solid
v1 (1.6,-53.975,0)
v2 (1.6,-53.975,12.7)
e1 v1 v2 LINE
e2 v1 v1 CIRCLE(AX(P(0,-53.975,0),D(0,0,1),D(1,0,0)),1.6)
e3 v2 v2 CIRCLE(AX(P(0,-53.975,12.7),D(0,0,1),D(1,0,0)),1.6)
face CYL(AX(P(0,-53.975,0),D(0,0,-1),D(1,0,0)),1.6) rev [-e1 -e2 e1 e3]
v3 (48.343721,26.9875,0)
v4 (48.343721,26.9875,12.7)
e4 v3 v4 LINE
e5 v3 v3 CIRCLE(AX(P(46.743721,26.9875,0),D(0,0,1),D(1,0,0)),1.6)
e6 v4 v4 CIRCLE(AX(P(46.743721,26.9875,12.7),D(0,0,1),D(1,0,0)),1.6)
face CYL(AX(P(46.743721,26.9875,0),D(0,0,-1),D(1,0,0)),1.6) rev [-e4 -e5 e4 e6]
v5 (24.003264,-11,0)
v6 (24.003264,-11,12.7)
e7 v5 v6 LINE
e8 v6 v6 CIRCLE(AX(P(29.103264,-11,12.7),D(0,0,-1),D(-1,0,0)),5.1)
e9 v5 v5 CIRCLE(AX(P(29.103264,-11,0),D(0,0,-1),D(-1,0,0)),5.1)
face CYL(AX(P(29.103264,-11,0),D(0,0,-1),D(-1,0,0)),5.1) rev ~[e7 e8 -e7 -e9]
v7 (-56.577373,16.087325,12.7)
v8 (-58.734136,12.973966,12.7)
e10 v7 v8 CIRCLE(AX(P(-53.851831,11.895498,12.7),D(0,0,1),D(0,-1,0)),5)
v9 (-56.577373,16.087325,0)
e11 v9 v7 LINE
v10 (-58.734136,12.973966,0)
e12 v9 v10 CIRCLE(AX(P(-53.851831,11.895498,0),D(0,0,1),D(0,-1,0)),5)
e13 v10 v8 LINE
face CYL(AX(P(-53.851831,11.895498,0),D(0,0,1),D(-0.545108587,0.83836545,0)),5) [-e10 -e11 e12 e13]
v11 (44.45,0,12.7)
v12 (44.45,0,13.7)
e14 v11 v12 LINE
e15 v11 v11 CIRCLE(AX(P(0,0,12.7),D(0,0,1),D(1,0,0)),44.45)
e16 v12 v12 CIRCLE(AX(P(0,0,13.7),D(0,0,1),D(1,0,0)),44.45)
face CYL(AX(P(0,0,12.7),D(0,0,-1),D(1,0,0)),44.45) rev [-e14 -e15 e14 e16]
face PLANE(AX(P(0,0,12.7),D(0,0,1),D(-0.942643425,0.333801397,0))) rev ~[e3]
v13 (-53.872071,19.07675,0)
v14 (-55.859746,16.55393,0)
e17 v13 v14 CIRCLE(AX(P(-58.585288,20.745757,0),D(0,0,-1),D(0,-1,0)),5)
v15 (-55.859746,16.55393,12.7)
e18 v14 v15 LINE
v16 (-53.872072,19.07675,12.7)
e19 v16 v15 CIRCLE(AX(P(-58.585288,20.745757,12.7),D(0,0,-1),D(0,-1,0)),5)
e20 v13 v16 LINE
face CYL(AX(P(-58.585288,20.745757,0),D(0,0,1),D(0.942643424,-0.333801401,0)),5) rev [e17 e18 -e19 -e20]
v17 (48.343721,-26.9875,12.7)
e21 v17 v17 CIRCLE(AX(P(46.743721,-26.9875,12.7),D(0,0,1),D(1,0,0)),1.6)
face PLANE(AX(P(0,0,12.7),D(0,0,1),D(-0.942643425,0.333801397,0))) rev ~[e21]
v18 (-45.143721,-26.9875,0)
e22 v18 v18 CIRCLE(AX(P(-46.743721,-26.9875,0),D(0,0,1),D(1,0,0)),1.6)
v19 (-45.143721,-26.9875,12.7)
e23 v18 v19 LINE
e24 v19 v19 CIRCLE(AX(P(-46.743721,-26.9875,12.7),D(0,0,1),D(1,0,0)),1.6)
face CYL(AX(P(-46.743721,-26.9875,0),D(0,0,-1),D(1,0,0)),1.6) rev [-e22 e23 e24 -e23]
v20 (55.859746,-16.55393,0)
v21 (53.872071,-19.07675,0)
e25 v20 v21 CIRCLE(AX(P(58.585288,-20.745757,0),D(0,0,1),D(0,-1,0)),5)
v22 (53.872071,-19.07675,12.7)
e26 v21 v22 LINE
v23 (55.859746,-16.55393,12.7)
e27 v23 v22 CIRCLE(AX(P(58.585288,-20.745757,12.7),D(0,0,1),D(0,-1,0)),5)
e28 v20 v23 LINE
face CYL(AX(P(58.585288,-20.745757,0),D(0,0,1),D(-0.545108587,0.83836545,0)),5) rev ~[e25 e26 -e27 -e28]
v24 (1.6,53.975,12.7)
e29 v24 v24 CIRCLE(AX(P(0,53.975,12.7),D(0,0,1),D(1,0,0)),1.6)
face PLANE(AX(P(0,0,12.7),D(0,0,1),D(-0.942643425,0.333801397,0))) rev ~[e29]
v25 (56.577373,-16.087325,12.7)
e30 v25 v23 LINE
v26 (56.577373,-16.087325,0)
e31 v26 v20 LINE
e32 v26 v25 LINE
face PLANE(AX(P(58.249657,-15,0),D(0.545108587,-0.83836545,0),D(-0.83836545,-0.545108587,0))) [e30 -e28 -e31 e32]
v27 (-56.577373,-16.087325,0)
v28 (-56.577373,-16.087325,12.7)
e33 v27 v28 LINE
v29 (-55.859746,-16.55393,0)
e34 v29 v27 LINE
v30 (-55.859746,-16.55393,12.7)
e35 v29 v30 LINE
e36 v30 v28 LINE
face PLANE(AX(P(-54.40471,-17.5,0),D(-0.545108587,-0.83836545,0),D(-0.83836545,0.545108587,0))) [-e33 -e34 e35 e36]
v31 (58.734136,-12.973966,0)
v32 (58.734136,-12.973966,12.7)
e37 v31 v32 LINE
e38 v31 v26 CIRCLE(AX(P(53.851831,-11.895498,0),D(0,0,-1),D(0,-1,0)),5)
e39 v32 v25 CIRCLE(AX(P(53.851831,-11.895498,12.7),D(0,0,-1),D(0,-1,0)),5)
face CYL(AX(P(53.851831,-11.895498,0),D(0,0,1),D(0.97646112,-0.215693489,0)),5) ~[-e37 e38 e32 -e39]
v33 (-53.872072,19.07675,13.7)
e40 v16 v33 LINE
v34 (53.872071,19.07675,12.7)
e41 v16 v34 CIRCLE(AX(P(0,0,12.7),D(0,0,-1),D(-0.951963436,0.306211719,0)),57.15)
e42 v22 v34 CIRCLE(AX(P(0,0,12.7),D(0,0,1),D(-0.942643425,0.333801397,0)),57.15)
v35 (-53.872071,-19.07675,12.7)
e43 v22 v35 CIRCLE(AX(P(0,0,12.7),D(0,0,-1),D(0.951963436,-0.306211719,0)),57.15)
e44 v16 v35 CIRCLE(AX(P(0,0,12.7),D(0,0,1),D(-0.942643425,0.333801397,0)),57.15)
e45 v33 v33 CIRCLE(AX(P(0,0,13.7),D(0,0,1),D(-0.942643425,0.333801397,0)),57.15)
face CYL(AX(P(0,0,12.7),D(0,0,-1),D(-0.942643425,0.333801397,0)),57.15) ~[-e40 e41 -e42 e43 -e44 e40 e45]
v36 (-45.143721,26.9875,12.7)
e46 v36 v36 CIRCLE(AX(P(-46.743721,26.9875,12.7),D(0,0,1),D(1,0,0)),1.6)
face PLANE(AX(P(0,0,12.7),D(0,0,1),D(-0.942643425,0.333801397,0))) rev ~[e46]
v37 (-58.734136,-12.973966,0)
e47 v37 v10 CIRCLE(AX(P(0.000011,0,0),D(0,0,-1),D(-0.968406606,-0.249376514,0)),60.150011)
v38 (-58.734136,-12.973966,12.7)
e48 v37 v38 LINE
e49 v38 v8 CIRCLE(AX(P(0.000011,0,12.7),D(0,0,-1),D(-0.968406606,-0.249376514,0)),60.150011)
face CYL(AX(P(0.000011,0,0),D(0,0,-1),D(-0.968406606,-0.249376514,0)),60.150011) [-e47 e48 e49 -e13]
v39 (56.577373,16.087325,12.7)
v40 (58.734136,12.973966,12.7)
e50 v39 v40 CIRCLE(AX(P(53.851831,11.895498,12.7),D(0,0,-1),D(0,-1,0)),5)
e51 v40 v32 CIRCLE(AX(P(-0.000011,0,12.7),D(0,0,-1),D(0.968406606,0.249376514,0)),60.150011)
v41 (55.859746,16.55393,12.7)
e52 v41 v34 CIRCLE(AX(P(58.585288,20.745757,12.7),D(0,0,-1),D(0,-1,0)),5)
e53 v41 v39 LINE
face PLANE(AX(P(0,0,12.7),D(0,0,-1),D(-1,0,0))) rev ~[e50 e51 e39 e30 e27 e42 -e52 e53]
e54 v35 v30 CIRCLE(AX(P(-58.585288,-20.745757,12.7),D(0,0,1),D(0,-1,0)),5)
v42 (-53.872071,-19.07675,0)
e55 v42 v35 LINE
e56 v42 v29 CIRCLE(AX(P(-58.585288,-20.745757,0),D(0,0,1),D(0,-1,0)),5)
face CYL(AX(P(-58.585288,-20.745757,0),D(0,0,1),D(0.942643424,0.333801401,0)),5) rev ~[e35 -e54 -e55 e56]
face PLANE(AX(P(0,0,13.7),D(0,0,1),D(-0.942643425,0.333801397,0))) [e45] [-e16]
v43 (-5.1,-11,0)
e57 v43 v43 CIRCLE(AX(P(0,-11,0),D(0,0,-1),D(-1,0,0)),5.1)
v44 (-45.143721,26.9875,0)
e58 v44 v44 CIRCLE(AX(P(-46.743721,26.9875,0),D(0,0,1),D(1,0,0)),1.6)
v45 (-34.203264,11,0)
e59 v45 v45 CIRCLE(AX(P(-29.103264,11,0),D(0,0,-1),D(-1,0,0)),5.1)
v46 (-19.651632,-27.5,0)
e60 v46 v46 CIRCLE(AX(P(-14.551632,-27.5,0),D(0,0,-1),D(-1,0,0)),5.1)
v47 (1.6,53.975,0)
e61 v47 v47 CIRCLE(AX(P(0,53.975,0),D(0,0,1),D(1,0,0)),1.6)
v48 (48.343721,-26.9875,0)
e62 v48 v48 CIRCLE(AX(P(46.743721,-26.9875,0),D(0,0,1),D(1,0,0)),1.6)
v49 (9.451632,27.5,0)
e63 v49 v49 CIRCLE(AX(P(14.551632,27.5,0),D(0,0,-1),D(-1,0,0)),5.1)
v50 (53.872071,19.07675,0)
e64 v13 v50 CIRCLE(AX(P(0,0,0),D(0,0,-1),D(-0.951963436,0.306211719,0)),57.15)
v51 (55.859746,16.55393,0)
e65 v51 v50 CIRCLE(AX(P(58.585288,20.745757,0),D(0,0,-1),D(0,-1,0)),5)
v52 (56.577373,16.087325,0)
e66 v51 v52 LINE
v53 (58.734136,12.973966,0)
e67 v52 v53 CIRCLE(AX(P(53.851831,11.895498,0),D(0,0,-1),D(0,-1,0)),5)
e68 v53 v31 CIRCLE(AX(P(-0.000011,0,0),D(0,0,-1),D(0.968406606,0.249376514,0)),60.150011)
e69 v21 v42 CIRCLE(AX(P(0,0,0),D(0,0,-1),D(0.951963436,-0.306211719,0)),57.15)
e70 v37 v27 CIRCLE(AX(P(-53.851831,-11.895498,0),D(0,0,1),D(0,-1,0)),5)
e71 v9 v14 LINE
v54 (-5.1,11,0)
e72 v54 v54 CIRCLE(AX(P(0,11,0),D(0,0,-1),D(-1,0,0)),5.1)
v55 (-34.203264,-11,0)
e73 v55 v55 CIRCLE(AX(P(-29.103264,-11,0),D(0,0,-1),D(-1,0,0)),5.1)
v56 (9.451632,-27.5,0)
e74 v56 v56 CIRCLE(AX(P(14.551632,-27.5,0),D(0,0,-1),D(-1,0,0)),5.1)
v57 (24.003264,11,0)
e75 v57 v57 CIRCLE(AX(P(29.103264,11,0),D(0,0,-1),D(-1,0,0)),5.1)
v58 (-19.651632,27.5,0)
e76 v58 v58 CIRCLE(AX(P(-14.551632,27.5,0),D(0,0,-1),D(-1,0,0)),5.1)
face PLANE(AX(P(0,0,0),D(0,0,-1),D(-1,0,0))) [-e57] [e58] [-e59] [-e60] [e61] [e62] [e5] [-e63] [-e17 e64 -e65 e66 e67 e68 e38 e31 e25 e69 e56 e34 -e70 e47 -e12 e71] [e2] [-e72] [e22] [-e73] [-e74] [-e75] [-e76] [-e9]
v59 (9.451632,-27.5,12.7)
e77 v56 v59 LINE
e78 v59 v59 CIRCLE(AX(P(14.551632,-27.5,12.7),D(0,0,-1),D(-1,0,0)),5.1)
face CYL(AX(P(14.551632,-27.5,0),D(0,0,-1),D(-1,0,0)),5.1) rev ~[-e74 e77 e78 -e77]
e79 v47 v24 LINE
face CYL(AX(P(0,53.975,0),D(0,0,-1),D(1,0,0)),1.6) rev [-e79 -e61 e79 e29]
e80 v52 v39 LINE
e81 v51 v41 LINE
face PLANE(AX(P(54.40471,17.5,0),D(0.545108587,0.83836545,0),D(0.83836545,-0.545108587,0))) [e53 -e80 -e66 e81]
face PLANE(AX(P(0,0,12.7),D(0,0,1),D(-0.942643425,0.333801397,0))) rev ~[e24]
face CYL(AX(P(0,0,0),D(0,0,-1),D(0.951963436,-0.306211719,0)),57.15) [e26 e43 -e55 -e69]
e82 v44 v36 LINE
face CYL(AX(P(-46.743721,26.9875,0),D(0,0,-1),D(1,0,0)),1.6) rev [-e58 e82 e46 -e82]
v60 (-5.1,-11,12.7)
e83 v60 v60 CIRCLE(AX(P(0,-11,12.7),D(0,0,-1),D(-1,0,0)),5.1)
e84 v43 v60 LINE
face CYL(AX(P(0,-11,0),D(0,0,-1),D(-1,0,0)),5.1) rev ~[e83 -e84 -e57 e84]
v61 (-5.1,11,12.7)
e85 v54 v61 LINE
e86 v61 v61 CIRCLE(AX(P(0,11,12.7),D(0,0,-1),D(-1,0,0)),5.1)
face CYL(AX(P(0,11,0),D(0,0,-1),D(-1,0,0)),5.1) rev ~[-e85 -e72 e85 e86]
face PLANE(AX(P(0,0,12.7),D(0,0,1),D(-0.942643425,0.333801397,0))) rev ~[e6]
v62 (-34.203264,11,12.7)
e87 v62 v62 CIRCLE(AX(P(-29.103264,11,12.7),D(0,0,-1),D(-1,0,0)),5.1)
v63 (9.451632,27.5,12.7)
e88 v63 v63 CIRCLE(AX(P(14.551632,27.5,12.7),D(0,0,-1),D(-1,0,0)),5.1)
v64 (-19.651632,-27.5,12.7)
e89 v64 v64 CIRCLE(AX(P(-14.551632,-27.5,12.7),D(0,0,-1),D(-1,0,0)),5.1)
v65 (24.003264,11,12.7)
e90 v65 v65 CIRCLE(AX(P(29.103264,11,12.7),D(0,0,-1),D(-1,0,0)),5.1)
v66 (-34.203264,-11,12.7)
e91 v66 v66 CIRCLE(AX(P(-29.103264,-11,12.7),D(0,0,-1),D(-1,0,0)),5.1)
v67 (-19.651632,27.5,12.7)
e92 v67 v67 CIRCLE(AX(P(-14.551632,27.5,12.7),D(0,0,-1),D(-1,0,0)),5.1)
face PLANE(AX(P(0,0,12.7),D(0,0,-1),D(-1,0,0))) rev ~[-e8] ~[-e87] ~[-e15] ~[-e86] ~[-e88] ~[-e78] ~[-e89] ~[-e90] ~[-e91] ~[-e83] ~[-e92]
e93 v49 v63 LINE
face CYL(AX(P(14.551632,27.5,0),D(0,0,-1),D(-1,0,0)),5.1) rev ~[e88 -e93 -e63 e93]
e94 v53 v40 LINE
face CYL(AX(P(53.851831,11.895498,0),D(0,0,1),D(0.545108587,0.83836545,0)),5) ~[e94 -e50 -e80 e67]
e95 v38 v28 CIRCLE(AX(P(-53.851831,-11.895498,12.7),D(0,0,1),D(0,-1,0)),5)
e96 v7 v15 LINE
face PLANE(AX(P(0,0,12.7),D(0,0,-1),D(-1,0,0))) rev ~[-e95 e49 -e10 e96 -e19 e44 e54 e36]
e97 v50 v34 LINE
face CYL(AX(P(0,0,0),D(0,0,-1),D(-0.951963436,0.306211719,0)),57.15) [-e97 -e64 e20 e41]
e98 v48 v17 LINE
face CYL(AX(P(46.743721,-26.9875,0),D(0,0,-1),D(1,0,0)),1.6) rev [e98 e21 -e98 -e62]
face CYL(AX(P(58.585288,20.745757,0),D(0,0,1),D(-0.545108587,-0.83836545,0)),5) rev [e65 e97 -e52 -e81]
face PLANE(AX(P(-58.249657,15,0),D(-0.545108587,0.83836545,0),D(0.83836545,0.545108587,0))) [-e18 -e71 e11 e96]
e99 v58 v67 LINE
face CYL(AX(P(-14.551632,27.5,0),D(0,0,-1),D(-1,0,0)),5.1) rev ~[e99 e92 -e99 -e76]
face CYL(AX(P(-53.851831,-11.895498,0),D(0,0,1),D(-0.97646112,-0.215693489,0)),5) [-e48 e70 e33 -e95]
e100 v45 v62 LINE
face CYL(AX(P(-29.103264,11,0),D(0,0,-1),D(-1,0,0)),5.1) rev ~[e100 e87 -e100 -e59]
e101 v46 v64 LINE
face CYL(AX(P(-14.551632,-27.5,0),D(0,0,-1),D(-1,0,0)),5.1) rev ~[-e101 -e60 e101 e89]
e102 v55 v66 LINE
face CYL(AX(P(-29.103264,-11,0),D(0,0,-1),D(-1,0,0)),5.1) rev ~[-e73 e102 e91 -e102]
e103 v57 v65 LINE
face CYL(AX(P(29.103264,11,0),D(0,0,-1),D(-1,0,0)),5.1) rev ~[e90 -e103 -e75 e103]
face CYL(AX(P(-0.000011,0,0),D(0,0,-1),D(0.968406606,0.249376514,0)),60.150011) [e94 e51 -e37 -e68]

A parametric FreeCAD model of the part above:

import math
import FreeCAD as App
import Part
import Sketcher
from FreeCAD import Vector
Q = App.Units.Quantity


def edges_at(feature, points):
    """Names of the edges that pass closest to the given points."""
    edges = feature.Shape.Edges
    near = lambda p: min(range(len(edges)), key=lambda i: edges[i].distToShape(Part.Vertex(*p))[0])
    return sorted({f"Edge{near(p) + 1}" for p in points})

doc = App.newDocument("Part")
body = doc.addObject("PartDesign::Body", "Body")

sketch1 = body.newObject("Sketcher::SketchObject", "Sketch")
sketch1.AttachmentSupport = (doc.getObject("XY_Plane"), [""])
sketch1.MapMode = "FlatFace"
sketch1.addGeometry([
    Part.LineSegment(Vector(58.249657, 15, 0), Vector(54.40471, 17.5, 0)),
    Part.ArcOfCircle(Part.Circle(Vector(0, 0, 0), Vector(0, 0, 1), 57.15), math.radians(17.831079), math.radians(162.168921)),
    Part.LineSegment(Vector(-54.40471, 17.5, 0), Vector(-58.249657, 15, 0)),
    Part.ArcOfCircle(Part.Circle(Vector(0.000011, 0, 0), Vector(0, 0, 1), 60.150011), math.radians(165.559379), math.radians(194.440621)),
    Part.LineSegment(Vector(-58.249657, -15, 0), Vector(-54.40471, -17.5, 0)),
    Part.ArcOfCircle(Part.Circle(Vector(0, 0, 0), Vector(0, 0, 1), 57.15), math.radians(-162.168921), math.radians(-17.831079)),
    Part.LineSegment(Vector(54.40471, -17.5, 0), Vector(58.249657, -15, 0)),
    Part.ArcOfCircle(Part.Circle(Vector(-0.000011, 0, 0), Vector(0, 0, 1), 60.150011), math.radians(-14.440621), math.radians(14.440621)),
    Part.Circle(Vector(46.743721, -26.9875, 0), Vector(0, 0, 1), 1.6),
    Part.Circle(Vector(0, -53.975, 0), Vector(0, 0, 1), 1.6),
    Part.Circle(Vector(-46.743721, -26.9875, 0), Vector(0, 0, 1), 1.6),
    Part.Circle(Vector(46.743721, 26.9875, 0), Vector(0, 0, 1), 1.6),
    Part.Circle(Vector(-46.743721, 26.9875, 0), Vector(0, 0, 1), 1.6),
    Part.Circle(Vector(0, 53.975, 0), Vector(0, 0, 1), 1.6),
], False)
sketch1.addConstraint([
    Sketcher.Constraint("Coincident", 0, 2, 1, 1),
    Sketcher.Constraint("Coincident", 1, 2, 2, 1),
    Sketcher.Constraint("Coincident", 2, 2, 3, 1),
    Sketcher.Constraint("Coincident", 3, 2, 4, 1),
    Sketcher.Constraint("Coincident", 4, 2, 5, 1),
    Sketcher.Constraint("Coincident", 5, 2, 6, 1),
    Sketcher.Constraint("Coincident", 6, 2, 7, 1),
    Sketcher.Constraint("Coincident", 7, 2, 0, 1),
    Sketcher.Constraint("Coincident", 1, 3, -1, 1),
    Sketcher.Constraint("Coincident", 5, 3, -1, 1),
    Sketcher.Constraint("Equal", 1, 5),
    Sketcher.Constraint("Equal", 3, 7),
    Sketcher.Constraint("Equal", 8, 9),
    Sketcher.Constraint("Equal", 9, 10),
    Sketcher.Constraint("Equal", 10, 11),
    Sketcher.Constraint("Equal", 11, 12),
    Sketcher.Constraint("Equal", 12, 13),
    Sketcher.Constraint("Symmetric", 3, 3, 7, 3, -1, 1),
    Sketcher.Constraint("Symmetric", 10, 3, 11, 3, -1, 1),
    Sketcher.Constraint("Symmetric", 8, 3, 12, 3, -1, 1),
    Sketcher.Constraint("Symmetric", 9, 3, 13, 3, -1, 1),
    Sketcher.Constraint("Symmetric", 8, 3, 10, 3, -2),
    Sketcher.Constraint("Symmetric", 3, 2, 6, 2, -2),
    Sketcher.Constraint("PointOnObject", 9, 3, -2),
    Sketcher.Constraint("Parallel", 0, 4),
    Sketcher.Constraint("Parallel", 2, 6),
    Sketcher.Constraint("Horizontal", 0, 2, 1, 2),
    Sketcher.Constraint("Horizontal", 4, 2, 5, 2),
    Sketcher.Constraint("Vertical", 2, 2, 3, 2),
    Sketcher.Constraint("Diameter", 8, Q("3.2 mm")),
    Sketcher.Constraint("Radius", 1, Q("57.15 mm")),
    Sketcher.Constraint("DistanceY", -1, 1, 2, 2, Q("15 mm")),
    Sketcher.Constraint("DistanceY", 4, 2, 1, 2, Q("35 mm")),
    Sketcher.Constraint("Radius", 3, Q("60.150011 mm")),
    Sketcher.Constraint("DistanceY", 9, 3, -1, 1, Q("53.975 mm")),
    Sketcher.Constraint("DistanceY", 8, 3, 11, 3, Q("53.975 mm")),
    Sketcher.Constraint("DistanceX", 3, 3, 0, 2, Q("54.404699 mm")),
    Sketcher.Constraint("DistanceX", -1, 1, 8, 3, Q("46.743721 mm")),
])
pad1 = body.newObject("PartDesign::Pad", "Pad")
pad1.Profile = sketch1
pad1.Length = 12.7

sketch2 = body.newObject("Sketcher::SketchObject", "Sketch001")
sketch2.AttachmentSupport = (doc.getObject("XY_Plane"), [""])
sketch2.MapMode = "FlatFace"
sketch2.addGeometry([
    Part.Circle(Vector(-15, 28, 0), Vector(0, 0, 1), 5),
    Part.Circle(Vector(29, 11, 0), Vector(0, 0, 1), 5),
    Part.Circle(Vector(29, -11, 0), Vector(0, 0, 1), 5),
    Part.Circle(Vector(-29, -11, 0), Vector(0, 0, 1), 5),
    Part.Circle(Vector(-29, 11, 0), Vector(0, 0, 1), 5),
    Part.Circle(Vector(15, 28, 0), Vector(0, 0, 1), 5),
    Part.Circle(Vector(0, -11, 0), Vector(0, 0, 1), 5),
    Part.Circle(Vector(15, -28, 0), Vector(0, 0, 1), 5),
    Part.Circle(Vector(0, 11, 0), Vector(0, 0, 1), 5),
    Part.Circle(Vector(-15, -28, 0), Vector(0, 0, 1), 5),
], False)
sketch2.addConstraint([
    Sketcher.Constraint("Equal", 0, 1),
    Sketcher.Constraint("Equal", 1, 2),
    Sketcher.Constraint("Equal", 2, 3),
    Sketcher.Constraint("Equal", 3, 4),
    Sketcher.Constraint("Equal", 4, 5),
    Sketcher.Constraint("Equal", 5, 6),
    Sketcher.Constraint("Equal", 6, 7),
    Sketcher.Constraint("Equal", 7, 8),
    Sketcher.Constraint("Equal", 8, 9),
    Sketcher.Constraint("Symmetric", 1, 3, 3, 3, -1, 1),
    Sketcher.Constraint("Symmetric", 2, 3, 4, 3, -1, 1),
    Sketcher.Constraint("Symmetric", 0, 3, 7, 3, -1, 1),
    Sketcher.Constraint("Symmetric", 6, 3, 8, 3, -1, 1),
    Sketcher.Constraint("Symmetric", 5, 3, 9, 3, -1, 1),
    Sketcher.Constraint("Symmetric", 2, 3, 3, 3, -2),
    Sketcher.Constraint("Symmetric", 0, 3, 5, 3, -2),
    Sketcher.Constraint("PointOnObject", 6, 3, -2),
    Sketcher.Constraint("Horizontal", 3, 3, 6, 3),
    Sketcher.Constraint("Diameter", 0, Q("10.2 mm")),
    Sketcher.Constraint("DistanceY", -1, 1, 1, 3, Q("11 mm")),
    Sketcher.Constraint("DistanceY", 7, 3, 5, 3, Q("55 mm")),
    Sketcher.Constraint("DistanceX", 0, 3, -1, 1, Q("14.551632 mm")),
    Sketcher.Constraint("DistanceX", -1, 1, 1, 3, Q("29.103264 mm")),
])
pocket1 = body.newObject("PartDesign::Pocket", "Pocket")
pocket1.Profile = sketch2
pocket1.Type = "ThroughAll"
pocket1.Reversed = True
doc.recompute()

fillet = body.newObject("PartDesign::Fillet", "Fillet")
fillet.Base = (pocket1, edges_at(pocket1, [
    (54.405, 17.5, 6.35),
    (58.25, 15, 6.35),
    (58.25, -15, 6.35),
    (54.405, -17.5, 6.35),
    (-54.405, -17.5, 6.35),
    (-58.25, -15, 6.35),
    (-58.25, 15, 6.35),
    (-54.405, 17.5, 6.35),
]))
fillet.Radius = 5

sketch3 = body.newObject("Sketcher::SketchObject", "Sketch002")
sketch3.AttachmentSupport = (doc.getObject("XY_Plane"), [""])
sketch3.MapMode = "FlatFace"
sketch3.AttachmentOffset = App.Placement(Vector(0, 0, 12.7), App.Rotation())
sketch3.addGeometry([
    Part.Circle(Vector(0, 0, 0), Vector(0, 0, 1), 57),
    Part.Circle(Vector(0, 0, 0), Vector(0, 0, 1), 44),
], False)
sketch3.addConstraint([
    Sketcher.Constraint("Coincident", 0, 3, -1, 1),
    Sketcher.Constraint("Coincident", 1, 3, -1, 1),
    Sketcher.Constraint("Diameter", 0, Q("114.3 mm")),
    Sketcher.Constraint("Diameter", 1, Q("88.9 mm")),
])
pad2 = body.newObject("PartDesign::Pad", "Pad001")
pad2.Profile = sketch3
pad2.Length = 1

doc.recompute()
